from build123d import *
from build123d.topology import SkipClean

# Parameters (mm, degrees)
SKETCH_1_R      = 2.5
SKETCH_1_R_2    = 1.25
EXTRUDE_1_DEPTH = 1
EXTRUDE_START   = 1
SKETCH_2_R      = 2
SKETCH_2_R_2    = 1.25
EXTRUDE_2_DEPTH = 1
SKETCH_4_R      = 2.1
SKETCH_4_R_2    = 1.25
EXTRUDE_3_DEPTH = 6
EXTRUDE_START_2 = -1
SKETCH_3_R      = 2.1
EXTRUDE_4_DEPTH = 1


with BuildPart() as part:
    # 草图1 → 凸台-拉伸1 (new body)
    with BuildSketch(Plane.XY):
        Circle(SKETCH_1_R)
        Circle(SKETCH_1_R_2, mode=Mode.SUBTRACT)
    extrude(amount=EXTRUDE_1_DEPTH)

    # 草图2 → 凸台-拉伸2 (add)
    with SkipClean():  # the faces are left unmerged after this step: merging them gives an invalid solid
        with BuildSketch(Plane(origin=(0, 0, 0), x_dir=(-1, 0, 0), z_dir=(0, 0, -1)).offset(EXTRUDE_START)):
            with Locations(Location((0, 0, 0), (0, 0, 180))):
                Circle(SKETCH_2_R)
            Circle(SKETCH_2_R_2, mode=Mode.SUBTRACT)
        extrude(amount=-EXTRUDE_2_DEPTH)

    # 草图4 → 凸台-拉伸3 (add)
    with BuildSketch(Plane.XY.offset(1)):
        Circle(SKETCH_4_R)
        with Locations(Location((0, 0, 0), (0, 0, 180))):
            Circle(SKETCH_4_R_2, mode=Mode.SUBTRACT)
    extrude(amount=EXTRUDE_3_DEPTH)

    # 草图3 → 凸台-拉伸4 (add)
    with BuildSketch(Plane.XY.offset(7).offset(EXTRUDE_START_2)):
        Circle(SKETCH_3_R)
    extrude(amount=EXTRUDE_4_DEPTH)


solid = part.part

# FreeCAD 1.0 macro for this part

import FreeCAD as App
import Part
import Sketcher
from FreeCAD import Vector

doc = App.newDocument("Part")
body = doc.addObject("PartDesign::Body", "Body")

# Sketch on XY plane
sketch1 = body.newObject("Sketcher::SketchObject", "Sketch")
sketch1.AttachmentSupport = (doc.getObject("XY_Plane"), [""])
sketch1.MapMode = "FlatFace"
sketch1.addGeometry(Part.Circle(Vector(0, 0, 0), Vector(0, 0, 1), 2.5), False)
sketch1.addGeometry(Part.Circle(Vector(0, 0, 0), Vector(0, 0, 1), 1.2), False)
sketch1.addConstraint(Sketcher.Constraint("Coincident", 0, 3, -1, 1))
sketch1.addConstraint(Sketcher.Constraint("Coincident", 1, 3, -1, 1))
sketch1.addConstraint(Sketcher.Constraint("Diameter", 0, 5.0))
sketch1.addConstraint(Sketcher.Constraint("Diameter", 1, 2.5))
pad1 = body.newObject("PartDesign::Pad", "Pad")
pad1.Profile = sketch1
pad1.Length = 1

# Sketch on XY plane
sketch2 = body.newObject("Sketcher::SketchObject", "Sketch001")
sketch2.AttachmentSupport = (doc.getObject("XY_Plane"), [""])
sketch2.MapMode = "FlatFace"
sketch2.AttachmentOffset = App.Placement(Vector(0, 0, -1), App.Rotation())
sketch2.addGeometry(Part.Circle(Vector(0, 0, 0), Vector(0, 0, 1), 2), False)
sketch2.addGeometry(Part.Circle(Vector(0, 0, 0), Vector(0, 0, 1), 1.2), False)
sketch2.addConstraint(Sketcher.Constraint("Coincident", 0, 3, -1, 1))
sketch2.addConstraint(Sketcher.Constraint("Coincident", 1, 3, -1, 1))
sketch2.addConstraint(Sketcher.Constraint("Diameter", 0, 4.0))
sketch2.addConstraint(Sketcher.Constraint("Diameter", 1, 2.5))
pad2 = body.newObject("PartDesign::Pad", "Pad001")
pad2.Profile = sketch2
pad2.Length = 1

# Sketch on XY plane
sketch3 = body.newObject("Sketcher::SketchObject", "Sketch002")
sketch3.AttachmentSupport = (doc.getObject("XY_Plane"), [""])
sketch3.MapMode = "FlatFace"
sketch3.AttachmentOffset = App.Placement(Vector(0, 0, 1), App.Rotation())
sketch3.addGeometry(Part.Circle(Vector(0, 0, 0), Vector(0, 0, 1), 2.1), False)
sketch3.addGeometry(Part.Circle(Vector(0, 0, 0), Vector(0, 0, 1), 1.2), False)
sketch3.addConstraint(Sketcher.Constraint("Coincident", 0, 3, -1, 1))
sketch3.addConstraint(Sketcher.Constraint("Coincident", 1, 3, -1, 1))
sketch3.addConstraint(Sketcher.Constraint("Diameter", 0, 4.2))
sketch3.addConstraint(Sketcher.Constraint("Diameter", 1, 2.5))
pad3 = body.newObject("PartDesign::Pad", "Pad002")
pad3.Profile = sketch3
pad3.Length = 6

# Sketch on XY plane
sketch4 = body.newObject("Sketcher::SketchObject", "Sketch003")
sketch4.AttachmentSupport = (doc.getObject("XY_Plane"), [""])
sketch4.MapMode = "FlatFace"
sketch4.AttachmentOffset = App.Placement(Vector(0, 0, 6), App.Rotation())
sketch4.addGeometry(Part.Circle(Vector(0, 0, 0), Vector(0, 0, 1), 2.1), False)
sketch4.addConstraint(Sketcher.Constraint("Coincident", 0, 3, -1, 1))
sketch4.addConstraint(Sketcher.Constraint("Diameter", 0, 4.2))
pad4 = body.newObject("PartDesign::Pad", "Pad003")
pad4.Profile = sketch4
pad4.Length = 1

doc.recompute()
